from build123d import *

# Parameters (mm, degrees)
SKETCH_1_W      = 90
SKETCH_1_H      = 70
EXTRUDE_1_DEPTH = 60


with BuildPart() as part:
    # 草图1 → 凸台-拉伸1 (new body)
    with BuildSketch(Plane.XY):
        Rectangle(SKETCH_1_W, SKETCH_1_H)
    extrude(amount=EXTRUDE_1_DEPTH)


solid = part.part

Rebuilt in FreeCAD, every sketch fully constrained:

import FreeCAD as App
import Part
import Sketcher


def add_polygon(sketch, points):
    """Adds a closed chain of lines whose ends are joined by coincident constraints."""
    first, n = sketch.GeometryCount, len(points)
    for a, b in zip(points, points[1:] + points[:1]):
        sketch.addGeometry(Part.LineSegment(App.Vector(*a, 0), App.Vector(*b, 0)), False)
    for i in range(n):
        sketch.addConstraint(Sketcher.Constraint("Coincident", first + i, 2, first + (i + 1) % n, 1))

doc = App.newDocument("Part")
body = doc.addObject("PartDesign::Body", "Body")

# Sketch on XY plane
sketch1 = doc.addObject("Sketcher::SketchObject", "Sketch")
body.addObject(sketch1)
sketch1.AttachmentSupport = (doc.XY_Plane, [""])
sketch1.MapMode = "FlatFace"
add_polygon(sketch1, [(-45, 35), (-45, -35), (45, -35), (45, 35)])  # lines 0-3
sketch1.addConstraint([
    Sketcher.Constraint("Vertical", 0),
    Sketcher.Constraint("Horizontal", 1),
    Sketcher.Constraint("Vertical", 2),
    Sketcher.Constraint("Horizontal", 3),
    Sketcher.Constraint("Symmetric", 0, 2, 2, 2, -1, 1),
    Sketcher.Constraint("DistanceX", 1, 1, 1, 2, 90.0),
    Sketcher.Constraint("DistanceY", 0, 2, 0, 1, 70.0),
])
pad1 = doc.addObject("PartDesign::Pad", "Pad")
body.addObject(pad1)
pad1.Profile = sketch1
pad1.Length = 60

doc.recompute()
